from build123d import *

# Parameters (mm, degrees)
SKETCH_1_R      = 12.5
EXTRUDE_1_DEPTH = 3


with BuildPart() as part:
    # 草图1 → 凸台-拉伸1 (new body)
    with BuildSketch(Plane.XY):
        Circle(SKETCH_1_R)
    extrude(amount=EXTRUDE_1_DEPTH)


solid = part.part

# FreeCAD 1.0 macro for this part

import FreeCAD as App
import Part
import Sketcher

V = App.Vector
Q = App.Units.Quantity

doc = App.newDocument("Part")
body = doc.addObject("PartDesign::Body", "Body")

# Sketch on XY plane
sketch1 = body.newObject("Sketcher::SketchObject", "Sketch")
sketch1.AttachmentSupport = (doc.getObject("XY_Plane"), [""])
sketch1.MapMode = "FlatFace"
sketch1.addGeometry(Part.Circle(V(0, 0, 0), V(0, 0, 1), 12), False)
sketch1.addConstraint(Sketcher.Constraint("Coincident", 0, 3, -1, 1))
sketch1.addConstraint(Sketcher.Constraint("Diameter", 0, Q("25 mm")))
pad1 = body.newObject("PartDesign::Pad", "Pad")
pad1.Profile = sketch1
pad1.Length = 3

doc.recompute()
